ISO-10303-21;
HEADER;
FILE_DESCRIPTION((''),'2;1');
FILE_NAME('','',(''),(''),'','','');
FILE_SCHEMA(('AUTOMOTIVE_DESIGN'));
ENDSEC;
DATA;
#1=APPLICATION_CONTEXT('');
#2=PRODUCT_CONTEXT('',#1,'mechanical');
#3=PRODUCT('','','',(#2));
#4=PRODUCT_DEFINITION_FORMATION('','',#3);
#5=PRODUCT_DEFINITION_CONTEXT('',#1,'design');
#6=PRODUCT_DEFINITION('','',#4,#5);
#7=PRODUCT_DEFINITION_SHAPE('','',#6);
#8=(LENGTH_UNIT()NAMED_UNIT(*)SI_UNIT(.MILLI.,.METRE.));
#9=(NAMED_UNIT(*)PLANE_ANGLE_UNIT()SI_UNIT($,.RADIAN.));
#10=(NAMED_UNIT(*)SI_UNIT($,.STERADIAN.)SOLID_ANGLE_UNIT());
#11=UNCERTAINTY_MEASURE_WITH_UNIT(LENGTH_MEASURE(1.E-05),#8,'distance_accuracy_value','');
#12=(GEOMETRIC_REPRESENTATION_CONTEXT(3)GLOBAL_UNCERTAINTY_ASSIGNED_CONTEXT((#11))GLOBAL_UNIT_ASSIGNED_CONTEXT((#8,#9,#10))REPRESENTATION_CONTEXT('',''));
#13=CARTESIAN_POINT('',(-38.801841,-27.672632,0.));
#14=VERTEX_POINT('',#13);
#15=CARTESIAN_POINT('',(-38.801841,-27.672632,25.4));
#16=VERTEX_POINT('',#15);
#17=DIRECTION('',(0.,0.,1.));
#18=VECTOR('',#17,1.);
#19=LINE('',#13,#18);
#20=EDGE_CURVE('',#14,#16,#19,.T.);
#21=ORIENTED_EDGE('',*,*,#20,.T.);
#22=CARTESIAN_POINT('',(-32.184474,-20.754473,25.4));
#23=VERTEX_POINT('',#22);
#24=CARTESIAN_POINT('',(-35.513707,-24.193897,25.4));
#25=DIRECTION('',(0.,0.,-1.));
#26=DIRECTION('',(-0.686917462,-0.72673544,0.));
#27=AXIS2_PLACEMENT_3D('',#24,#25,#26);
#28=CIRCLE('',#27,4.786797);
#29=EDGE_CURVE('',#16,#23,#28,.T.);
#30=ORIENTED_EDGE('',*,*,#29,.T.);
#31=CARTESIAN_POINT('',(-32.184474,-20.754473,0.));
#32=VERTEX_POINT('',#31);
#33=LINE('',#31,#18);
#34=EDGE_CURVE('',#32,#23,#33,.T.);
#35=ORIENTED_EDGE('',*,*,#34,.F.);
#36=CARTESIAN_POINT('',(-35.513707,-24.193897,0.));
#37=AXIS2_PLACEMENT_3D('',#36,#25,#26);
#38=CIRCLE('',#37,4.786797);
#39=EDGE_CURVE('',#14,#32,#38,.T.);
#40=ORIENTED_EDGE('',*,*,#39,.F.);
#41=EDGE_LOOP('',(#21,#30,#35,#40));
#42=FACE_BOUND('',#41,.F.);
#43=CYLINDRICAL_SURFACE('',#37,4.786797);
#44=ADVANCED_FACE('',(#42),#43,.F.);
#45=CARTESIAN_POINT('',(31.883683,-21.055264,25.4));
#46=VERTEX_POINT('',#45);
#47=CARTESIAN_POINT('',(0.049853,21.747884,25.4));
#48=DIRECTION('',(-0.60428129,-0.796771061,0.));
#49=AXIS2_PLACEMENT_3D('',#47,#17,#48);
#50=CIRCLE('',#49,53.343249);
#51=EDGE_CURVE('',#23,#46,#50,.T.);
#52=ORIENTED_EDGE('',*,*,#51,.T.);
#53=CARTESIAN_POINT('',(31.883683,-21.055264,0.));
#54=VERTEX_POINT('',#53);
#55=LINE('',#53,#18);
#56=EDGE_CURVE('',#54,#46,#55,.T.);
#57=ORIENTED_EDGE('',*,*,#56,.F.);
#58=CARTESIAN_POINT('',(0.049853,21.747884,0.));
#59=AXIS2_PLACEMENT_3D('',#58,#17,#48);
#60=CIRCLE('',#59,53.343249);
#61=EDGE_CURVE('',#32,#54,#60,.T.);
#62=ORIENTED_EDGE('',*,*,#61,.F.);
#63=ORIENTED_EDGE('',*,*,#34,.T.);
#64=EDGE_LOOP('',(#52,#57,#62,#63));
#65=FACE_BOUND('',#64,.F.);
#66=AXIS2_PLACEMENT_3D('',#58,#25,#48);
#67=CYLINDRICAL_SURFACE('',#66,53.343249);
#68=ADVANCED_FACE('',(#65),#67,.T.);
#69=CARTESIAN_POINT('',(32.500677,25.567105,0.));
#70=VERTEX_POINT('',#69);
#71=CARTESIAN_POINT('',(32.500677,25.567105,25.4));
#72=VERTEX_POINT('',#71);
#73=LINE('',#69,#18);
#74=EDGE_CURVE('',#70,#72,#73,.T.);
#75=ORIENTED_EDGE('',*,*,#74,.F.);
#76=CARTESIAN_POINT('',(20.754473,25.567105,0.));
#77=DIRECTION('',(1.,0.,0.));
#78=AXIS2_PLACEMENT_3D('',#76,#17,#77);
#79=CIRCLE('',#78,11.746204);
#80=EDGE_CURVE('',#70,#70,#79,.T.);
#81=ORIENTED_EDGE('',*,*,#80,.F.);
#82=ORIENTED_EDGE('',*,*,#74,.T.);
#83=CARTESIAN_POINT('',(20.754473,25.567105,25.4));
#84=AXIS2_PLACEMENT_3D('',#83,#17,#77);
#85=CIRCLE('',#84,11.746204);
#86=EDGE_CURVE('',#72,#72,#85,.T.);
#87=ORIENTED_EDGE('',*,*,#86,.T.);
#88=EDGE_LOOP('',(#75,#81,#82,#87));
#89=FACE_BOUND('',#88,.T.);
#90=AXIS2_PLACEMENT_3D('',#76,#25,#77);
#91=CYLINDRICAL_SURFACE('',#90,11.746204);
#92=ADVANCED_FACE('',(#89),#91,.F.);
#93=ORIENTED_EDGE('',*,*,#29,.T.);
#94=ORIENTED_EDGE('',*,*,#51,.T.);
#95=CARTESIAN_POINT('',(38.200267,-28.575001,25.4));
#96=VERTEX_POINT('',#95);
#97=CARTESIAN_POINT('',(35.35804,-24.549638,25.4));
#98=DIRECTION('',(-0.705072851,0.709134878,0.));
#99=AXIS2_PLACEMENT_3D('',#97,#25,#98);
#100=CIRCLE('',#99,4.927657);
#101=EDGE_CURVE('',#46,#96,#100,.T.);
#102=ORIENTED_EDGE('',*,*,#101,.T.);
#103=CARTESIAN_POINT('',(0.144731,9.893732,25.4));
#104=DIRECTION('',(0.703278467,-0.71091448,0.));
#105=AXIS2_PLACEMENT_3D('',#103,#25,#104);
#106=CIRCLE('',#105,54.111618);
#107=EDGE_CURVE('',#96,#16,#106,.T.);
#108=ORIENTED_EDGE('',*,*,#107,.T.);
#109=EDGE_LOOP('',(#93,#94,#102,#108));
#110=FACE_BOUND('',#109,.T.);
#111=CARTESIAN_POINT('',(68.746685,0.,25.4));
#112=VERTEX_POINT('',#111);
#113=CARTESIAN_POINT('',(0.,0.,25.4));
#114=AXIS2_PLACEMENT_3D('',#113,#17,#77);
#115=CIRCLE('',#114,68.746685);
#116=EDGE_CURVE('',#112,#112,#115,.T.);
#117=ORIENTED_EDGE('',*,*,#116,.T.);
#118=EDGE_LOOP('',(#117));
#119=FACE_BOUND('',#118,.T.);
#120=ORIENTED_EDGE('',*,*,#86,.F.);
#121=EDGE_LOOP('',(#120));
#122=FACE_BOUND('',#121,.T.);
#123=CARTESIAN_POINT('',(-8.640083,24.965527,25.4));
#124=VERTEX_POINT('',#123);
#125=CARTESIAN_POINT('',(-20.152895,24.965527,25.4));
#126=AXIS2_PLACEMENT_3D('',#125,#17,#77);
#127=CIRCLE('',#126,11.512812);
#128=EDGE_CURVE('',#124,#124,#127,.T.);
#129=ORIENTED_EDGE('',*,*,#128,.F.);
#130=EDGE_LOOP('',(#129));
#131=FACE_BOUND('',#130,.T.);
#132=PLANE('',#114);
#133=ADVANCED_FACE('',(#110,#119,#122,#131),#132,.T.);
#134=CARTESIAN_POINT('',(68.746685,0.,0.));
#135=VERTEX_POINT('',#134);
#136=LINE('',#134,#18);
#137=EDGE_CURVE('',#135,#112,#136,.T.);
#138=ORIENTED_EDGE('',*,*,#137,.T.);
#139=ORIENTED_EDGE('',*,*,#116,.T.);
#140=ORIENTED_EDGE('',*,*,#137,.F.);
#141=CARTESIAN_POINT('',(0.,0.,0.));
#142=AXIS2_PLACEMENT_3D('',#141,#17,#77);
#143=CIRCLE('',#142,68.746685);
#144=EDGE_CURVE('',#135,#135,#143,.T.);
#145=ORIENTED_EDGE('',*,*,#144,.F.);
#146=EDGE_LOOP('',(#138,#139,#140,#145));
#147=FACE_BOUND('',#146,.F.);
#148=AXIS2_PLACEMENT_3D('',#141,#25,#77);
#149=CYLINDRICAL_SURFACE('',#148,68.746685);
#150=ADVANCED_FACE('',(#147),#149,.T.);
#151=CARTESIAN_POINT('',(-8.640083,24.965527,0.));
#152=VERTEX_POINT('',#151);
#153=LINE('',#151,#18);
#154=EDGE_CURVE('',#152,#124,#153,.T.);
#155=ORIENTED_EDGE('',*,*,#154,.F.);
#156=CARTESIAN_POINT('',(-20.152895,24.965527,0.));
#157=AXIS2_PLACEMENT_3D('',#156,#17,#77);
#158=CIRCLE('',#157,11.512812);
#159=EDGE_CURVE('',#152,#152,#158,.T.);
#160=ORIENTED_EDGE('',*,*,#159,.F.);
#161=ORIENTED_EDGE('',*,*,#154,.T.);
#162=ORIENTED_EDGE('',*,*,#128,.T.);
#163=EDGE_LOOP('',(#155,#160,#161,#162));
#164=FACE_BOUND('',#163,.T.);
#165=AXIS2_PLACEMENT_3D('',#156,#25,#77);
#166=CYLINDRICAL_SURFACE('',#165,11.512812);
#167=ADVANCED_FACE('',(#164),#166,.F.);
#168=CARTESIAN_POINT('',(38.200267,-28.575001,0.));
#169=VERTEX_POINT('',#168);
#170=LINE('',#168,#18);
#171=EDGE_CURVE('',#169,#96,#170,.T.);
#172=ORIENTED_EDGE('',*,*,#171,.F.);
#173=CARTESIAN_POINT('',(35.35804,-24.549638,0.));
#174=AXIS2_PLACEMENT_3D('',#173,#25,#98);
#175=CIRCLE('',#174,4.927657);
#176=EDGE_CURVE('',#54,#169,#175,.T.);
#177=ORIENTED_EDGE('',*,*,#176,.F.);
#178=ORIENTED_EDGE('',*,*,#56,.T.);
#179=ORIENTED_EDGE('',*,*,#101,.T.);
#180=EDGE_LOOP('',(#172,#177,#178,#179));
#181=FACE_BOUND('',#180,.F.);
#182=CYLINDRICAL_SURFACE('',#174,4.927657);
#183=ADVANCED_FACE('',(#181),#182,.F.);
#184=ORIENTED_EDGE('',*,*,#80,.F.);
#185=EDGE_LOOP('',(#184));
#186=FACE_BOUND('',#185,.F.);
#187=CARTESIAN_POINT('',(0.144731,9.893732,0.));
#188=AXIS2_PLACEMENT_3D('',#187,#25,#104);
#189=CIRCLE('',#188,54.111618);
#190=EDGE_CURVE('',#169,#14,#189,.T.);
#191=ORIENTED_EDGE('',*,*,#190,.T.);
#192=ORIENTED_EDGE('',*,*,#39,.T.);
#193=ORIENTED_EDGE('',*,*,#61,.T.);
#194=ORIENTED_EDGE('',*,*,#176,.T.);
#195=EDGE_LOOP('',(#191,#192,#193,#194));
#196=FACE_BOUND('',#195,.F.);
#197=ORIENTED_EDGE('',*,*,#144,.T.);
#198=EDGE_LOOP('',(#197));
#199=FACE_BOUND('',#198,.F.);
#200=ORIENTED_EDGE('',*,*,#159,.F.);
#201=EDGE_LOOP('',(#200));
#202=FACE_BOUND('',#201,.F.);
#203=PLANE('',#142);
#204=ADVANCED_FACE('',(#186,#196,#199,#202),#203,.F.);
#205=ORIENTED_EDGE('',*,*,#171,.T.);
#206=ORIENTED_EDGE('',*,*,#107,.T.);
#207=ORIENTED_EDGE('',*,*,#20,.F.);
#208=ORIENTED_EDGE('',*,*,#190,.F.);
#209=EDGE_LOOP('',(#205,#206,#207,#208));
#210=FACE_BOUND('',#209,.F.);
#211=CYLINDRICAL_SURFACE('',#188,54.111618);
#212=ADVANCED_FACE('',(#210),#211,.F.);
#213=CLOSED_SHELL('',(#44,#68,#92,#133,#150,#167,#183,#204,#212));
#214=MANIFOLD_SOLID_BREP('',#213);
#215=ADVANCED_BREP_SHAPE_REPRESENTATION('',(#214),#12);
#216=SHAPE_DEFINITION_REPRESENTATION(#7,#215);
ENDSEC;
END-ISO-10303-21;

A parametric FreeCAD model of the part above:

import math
import FreeCAD as App
import Part
import Sketcher
Q = App.Units.Quantity

doc = App.newDocument("Part")
params = doc.addObject("Spreadsheet::Sheet", "Params")
for row, (alias, value) in enumerate([
    ("pad1_length", "1 in"),
], start=1):
    params.set(f"A{row}", alias)
    params.set(f"B{row}", "=" + value)
    params.setAlias(f"B{row}", alias)

body = doc.addObject("PartDesign::Body", "Body")

sketch1 = doc.addObject("Sketcher::SketchObject", "Sketch")
body.addObject(sketch1)
sketch1.AttachmentSupport = (doc.XY_Plane, [""])
sketch1.MapMode = "FlatFace"
sketch1.addGeometry(Part.Circle(App.Vector(0, 0, 0), App.Vector(0, 0, 1), 68.7), False)
sketch1.addGeometry(Part.ArcOfCircle(Part.Circle(App.Vector(35.4, -24.5, 0), App.Vector(0, 0, 1), 4.9), math.radians(-55), math.radians(135)), False)
sketch1.addGeometry(Part.ArcOfCircle(Part.Circle(App.Vector(0.1, 9.9, 0), App.Vector(0, 0, 1), 54.1), math.radians(-136), math.radians(-45)), False)
sketch1.addGeometry(Part.ArcOfCircle(Part.Circle(App.Vector(-35.5, -24.2, 0), App.Vector(0, 0, 1), 4.8), math.radians(46), math.radians(227)), False)
sketch1.addGeometry(Part.ArcOfCircle(Part.Circle(App.Vector(0, 21.7, 0), App.Vector(0, 0, 1), 53.3), math.radians(-127), math.radians(-53)), False)
sketch1.addGeometry(Part.Circle(App.Vector(-20.2, 25, 0), App.Vector(0, 0, 1), 11.5), False)
sketch1.addGeometry(Part.Circle(App.Vector(20.8, 25.6, 0), App.Vector(0, 0, 1), 11.7), False)
sketch1.addConstraint(Sketcher.Constraint("Coincident", 1, 1, 2, 2))
sketch1.addConstraint(Sketcher.Constraint("Coincident", 2, 1, 3, 2))
sketch1.addConstraint(Sketcher.Constraint("Coincident", 3, 1, 4, 1))
sketch1.addConstraint(Sketcher.Constraint("Coincident", 4, 2, 1, 2))
sketch1.addConstraint(Sketcher.Constraint("Coincident", 0, 3, -1, 1))
sketch1.addConstraint(Sketcher.Constraint("DistanceY", 3, 1, 5, 3, Q("1.8 in")))
sketch1.addConstraint(Sketcher.Constraint("Diameter", 0, 137.49337))
sketch1.addConstraint(Sketcher.Constraint("Diameter", 6, 23.492408))
sketch1.addConstraint(Sketcher.Constraint("DistanceY", 1, 1, -1, 1, Q("1.125 in")))
sketch1.addConstraint(Sketcher.Constraint("Radius", 4, 53.343249))
sketch1.addConstraint(Sketcher.Constraint("Diameter", 5, 23.025624))
sketch1.addConstraint(Sketcher.Constraint("Radius", 1, 4.927657))
sketch1.addConstraint(Sketcher.Constraint("Radius", 2, 54.111618))
sketch1.addConstraint(Sketcher.Constraint("Radius", 3, 4.786797))
sketch1.addConstraint(Sketcher.Constraint("DistanceY", 1, 3, 6, 3, Q("1.9731001 in")))
sketch1.addConstraint(Sketcher.Constraint("DistanceX", -1, 1, 1, 3, 35.35804))
sketch1.addConstraint(Sketcher.Constraint("DistanceX", -1, 1, 2, 3, 0.144731))
sketch1.addConstraint(Sketcher.Constraint("DistanceY", -1, 1, 2, 3, 9.893732))
sketch1.addConstraint(Sketcher.Constraint("DistanceX", 2, 1, -1, 1, 38.801841))
sketch1.addConstraint(Sketcher.Constraint("DistanceY", 3, 3, 2, 3, 34.087628))
sketch1.addConstraint(Sketcher.Constraint("DistanceX", 4, 3, 2, 3, 0.094878))
sketch1.addConstraint(Sketcher.Constraint("DistanceY", 3, 3, 4, 3, 45.941781))
sketch1.addConstraint(Sketcher.Constraint("DistanceX", 5, 3, 4, 3, 20.202748))
sketch1.addConstraint(Sketcher.Constraint("DistanceX", 4, 3, 6, 3, 20.70462))
pad1 = doc.addObject("PartDesign::Pad", "Pad")
body.addObject(pad1)
pad1.Profile = sketch1
pad1.setExpression("Length", "Params.pad1_length")

doc.recompute()
